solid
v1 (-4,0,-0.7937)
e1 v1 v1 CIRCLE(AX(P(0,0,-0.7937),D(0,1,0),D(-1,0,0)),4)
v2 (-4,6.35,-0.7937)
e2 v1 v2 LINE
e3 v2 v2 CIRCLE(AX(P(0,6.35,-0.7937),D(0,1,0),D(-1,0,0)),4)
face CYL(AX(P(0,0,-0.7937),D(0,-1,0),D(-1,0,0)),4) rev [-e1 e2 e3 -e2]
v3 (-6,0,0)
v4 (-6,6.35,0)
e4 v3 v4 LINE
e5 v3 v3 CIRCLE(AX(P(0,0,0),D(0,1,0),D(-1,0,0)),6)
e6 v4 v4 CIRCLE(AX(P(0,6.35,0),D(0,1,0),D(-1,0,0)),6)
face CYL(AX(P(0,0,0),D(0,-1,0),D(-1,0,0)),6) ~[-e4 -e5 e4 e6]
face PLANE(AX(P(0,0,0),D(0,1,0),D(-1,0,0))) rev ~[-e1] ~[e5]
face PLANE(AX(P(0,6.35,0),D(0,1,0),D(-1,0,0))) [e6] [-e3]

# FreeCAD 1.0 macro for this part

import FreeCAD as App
import Part
import Sketcher

doc = App.newDocument("Part")
body = doc.addObject("PartDesign::Body", "Body")

# Sketch on XZ plane
sketch1 = doc.addObject("Sketcher::SketchObject", "Sketch")
body.addObject(sketch1)
sketch1.AttachmentSupport = (doc.XZ_Plane, [""])
sketch1.MapMode = "FlatFace"
sketch1.addGeometry([
    Part.Circle(App.Vector(0, 0, 0), App.Vector(0, 0, 1), 6),
    Part.Circle(App.Vector(0, -0.8, 0), App.Vector(0, 0, 1), 4),
], False)
sketch1.addConstraint([
    Sketcher.Constraint("Coincident", 0, 3, -1, 1),
    Sketcher.Constraint("PointOnObject", 1, 3, -2),
    Sketcher.Constraint("Diameter", 0, 12.0),
    Sketcher.Constraint("Diameter", 1, 8.0),
    Sketcher.Constraint("DistanceY", 1, 3, -1, 1, 0.7937),
])
pad1 = doc.addObject("PartDesign::Pad", "Pad")
body.addObject(pad1)
pad1.Profile = sketch1
pad1.Length = 6.35
pad1.Reversed = True

doc.recompute()
